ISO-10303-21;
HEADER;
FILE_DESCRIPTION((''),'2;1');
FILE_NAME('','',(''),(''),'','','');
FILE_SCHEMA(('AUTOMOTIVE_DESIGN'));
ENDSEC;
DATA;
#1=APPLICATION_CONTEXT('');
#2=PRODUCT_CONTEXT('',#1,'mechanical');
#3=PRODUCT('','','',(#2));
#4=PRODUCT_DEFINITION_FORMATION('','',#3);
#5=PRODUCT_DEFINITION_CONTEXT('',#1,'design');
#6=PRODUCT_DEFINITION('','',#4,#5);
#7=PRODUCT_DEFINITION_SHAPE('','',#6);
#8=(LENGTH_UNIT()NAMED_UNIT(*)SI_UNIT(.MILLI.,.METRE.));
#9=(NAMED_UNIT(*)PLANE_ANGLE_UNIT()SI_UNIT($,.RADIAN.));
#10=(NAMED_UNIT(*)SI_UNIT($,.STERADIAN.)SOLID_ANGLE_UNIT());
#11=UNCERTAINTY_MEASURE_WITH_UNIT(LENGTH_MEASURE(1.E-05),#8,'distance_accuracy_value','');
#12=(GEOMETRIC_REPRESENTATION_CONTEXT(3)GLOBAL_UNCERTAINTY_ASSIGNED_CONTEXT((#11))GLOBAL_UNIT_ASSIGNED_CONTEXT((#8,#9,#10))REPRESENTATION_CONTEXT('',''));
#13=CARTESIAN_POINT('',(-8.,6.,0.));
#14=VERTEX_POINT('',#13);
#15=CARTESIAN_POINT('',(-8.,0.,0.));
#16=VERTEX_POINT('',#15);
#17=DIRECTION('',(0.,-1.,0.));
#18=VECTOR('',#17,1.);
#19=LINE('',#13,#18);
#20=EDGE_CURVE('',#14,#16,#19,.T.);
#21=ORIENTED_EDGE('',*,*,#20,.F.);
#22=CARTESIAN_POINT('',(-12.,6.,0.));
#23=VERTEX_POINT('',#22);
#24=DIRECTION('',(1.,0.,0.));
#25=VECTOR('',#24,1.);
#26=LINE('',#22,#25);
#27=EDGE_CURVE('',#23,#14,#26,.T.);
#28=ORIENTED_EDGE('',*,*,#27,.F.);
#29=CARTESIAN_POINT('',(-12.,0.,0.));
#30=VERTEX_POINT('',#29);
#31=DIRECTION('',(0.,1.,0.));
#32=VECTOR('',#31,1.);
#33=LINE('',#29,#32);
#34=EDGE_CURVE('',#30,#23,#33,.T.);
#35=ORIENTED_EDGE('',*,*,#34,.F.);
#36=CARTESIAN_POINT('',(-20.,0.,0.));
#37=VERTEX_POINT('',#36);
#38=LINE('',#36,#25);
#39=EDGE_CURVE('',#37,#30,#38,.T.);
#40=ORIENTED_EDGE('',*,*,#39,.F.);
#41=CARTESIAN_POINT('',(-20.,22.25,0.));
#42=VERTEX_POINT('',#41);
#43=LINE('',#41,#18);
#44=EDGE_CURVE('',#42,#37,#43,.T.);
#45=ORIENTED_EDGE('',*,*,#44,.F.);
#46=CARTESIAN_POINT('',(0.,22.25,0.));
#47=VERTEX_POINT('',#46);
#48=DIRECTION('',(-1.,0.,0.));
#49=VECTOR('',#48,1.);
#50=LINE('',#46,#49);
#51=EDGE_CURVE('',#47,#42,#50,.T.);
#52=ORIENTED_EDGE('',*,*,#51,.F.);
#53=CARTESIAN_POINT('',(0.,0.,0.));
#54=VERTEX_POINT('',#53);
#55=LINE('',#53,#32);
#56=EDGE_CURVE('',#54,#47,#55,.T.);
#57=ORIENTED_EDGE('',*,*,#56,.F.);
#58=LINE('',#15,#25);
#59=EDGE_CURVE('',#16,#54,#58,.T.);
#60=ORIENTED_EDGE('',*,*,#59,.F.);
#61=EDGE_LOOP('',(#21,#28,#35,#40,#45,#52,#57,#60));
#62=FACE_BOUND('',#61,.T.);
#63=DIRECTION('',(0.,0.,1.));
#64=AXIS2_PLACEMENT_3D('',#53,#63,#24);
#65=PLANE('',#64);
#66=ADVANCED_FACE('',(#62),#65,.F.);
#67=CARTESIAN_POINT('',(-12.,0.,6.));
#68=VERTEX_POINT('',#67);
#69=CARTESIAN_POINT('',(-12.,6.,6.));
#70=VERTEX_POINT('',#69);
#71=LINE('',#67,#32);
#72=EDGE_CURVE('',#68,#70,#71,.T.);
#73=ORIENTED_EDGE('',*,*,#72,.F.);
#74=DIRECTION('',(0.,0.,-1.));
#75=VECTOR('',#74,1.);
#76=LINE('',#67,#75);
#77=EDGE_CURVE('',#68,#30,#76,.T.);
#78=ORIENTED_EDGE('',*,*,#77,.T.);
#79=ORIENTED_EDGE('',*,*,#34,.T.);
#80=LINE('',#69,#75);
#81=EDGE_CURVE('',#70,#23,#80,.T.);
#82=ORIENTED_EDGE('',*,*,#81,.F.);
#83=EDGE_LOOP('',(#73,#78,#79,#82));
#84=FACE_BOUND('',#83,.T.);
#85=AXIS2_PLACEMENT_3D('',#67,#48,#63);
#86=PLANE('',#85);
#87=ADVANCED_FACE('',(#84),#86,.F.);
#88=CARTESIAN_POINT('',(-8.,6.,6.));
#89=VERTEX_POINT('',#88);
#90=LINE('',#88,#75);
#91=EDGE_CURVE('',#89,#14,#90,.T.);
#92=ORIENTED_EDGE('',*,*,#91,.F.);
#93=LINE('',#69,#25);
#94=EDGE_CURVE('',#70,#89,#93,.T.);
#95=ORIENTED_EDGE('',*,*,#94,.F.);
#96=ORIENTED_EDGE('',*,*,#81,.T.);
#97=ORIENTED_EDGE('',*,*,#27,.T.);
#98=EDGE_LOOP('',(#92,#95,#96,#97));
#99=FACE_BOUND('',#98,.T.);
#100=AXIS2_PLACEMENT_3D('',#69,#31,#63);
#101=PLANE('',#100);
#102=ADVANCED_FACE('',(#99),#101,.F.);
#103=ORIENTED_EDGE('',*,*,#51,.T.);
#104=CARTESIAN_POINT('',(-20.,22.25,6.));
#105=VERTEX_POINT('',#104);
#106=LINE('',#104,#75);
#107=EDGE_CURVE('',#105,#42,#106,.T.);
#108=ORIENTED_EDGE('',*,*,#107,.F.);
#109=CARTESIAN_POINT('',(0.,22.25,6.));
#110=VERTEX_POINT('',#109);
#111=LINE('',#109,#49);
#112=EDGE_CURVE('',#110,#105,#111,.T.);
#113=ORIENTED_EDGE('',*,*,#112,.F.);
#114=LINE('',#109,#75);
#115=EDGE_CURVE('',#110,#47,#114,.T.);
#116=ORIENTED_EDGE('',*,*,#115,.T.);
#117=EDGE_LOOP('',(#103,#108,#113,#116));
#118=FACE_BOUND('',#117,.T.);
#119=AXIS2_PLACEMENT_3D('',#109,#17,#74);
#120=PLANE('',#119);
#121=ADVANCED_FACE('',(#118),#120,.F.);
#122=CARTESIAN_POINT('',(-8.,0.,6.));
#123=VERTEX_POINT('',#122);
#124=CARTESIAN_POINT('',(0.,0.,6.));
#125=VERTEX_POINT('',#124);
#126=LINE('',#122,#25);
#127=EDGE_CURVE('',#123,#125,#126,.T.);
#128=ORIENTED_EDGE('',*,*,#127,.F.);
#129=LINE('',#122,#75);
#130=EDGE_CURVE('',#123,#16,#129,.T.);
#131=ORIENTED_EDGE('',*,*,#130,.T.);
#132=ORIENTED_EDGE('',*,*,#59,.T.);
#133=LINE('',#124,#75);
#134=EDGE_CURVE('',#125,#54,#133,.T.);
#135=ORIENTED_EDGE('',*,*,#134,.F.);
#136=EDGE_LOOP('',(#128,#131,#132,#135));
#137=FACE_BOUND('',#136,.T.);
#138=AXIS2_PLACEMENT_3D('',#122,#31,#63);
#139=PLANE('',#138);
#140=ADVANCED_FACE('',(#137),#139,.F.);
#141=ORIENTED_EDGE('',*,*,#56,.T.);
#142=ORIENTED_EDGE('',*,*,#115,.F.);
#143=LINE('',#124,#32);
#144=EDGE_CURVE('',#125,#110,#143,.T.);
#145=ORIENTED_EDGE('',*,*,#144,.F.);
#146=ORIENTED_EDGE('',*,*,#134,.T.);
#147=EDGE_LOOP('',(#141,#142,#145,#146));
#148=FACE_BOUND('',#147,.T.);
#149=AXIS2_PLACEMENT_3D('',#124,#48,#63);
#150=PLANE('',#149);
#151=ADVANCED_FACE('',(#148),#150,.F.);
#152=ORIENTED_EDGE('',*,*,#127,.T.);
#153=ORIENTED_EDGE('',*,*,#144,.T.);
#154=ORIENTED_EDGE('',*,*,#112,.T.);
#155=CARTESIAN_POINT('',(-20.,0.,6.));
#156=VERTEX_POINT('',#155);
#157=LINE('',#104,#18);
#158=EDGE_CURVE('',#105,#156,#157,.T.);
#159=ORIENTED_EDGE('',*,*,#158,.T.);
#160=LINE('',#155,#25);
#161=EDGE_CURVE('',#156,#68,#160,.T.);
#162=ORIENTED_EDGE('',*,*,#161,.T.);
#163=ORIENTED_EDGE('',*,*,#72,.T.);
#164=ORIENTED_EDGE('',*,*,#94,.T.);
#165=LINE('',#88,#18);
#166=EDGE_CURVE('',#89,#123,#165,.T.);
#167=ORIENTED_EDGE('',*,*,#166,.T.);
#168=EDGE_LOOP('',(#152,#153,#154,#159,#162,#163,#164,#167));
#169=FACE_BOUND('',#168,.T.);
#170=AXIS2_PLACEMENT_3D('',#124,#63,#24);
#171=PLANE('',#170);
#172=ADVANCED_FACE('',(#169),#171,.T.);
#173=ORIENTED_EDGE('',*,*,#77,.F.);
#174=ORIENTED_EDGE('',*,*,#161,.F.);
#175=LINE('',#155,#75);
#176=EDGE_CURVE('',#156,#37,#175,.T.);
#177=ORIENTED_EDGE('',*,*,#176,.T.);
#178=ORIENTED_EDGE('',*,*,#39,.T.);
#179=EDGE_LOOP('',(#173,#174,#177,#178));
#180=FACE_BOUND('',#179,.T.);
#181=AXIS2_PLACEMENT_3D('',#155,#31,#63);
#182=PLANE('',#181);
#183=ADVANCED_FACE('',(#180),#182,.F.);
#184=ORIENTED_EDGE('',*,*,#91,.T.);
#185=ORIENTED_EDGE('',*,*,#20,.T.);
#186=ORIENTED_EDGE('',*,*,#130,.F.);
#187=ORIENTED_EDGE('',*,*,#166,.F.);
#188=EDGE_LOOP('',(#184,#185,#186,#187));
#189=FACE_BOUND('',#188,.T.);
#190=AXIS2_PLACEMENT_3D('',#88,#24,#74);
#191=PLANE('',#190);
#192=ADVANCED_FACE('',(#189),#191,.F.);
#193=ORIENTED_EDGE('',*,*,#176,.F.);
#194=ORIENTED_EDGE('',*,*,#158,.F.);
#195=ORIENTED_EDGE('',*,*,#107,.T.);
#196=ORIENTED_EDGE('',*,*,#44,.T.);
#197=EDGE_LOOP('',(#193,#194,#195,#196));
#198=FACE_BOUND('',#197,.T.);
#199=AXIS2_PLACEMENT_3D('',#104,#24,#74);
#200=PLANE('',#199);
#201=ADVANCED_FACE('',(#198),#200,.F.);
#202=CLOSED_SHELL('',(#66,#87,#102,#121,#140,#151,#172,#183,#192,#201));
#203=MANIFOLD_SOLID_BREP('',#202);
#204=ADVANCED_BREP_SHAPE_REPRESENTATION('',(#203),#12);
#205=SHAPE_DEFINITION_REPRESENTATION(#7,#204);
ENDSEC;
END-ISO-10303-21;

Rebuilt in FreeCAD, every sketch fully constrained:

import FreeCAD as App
import Part
import Sketcher

V = App.Vector
Q = App.Units.Quantity


def add_polygon(sketch, points):
    """Adds a closed chain of lines whose ends are joined by coincident constraints."""
    first, n = sketch.GeometryCount, len(points)
    for a, b in zip(points, points[1:] + points[:1]):
        sketch.addGeometry(Part.LineSegment(App.Vector(*a, 0), App.Vector(*b, 0)), False)
    for i in range(n):
        sketch.addConstraint(Sketcher.Constraint("Coincident", first + i, 2, first + (i + 1) % n, 1))

doc = App.newDocument("Part")
body = doc.addObject("PartDesign::Body", "Body")

# Sketch on XY plane
sketch1 = body.newObject("Sketcher::SketchObject", "Sketch")
sketch1.AttachmentSupport = (doc.getObject("XY_Plane"), [""])
sketch1.MapMode = "FlatFace"
add_polygon(sketch1, [(0, 0), (0, 22.2), (-20, 22.2), (-20, 0), (-12, 0), (-12, 6), (-8, 6), (-8, 0)])  # lines 0-7
sketch1.addConstraint([
    Sketcher.Constraint("Vertical", 0),
    Sketcher.Constraint("Horizontal", 1),
    Sketcher.Constraint("Vertical", 2),
    Sketcher.Constraint("Horizontal", 3),
    Sketcher.Constraint("Vertical", 4),
    Sketcher.Constraint("Horizontal", 5),
    Sketcher.Constraint("Vertical", 6),
    Sketcher.Constraint("Horizontal", 7),
    Sketcher.Constraint("Coincident", 7, 2, -1, 1),
    Sketcher.Constraint("PointOnObject", 2, 2, -1),
    Sketcher.Constraint("Equal", 3, 7),
    Sketcher.Constraint("DistanceX", 1, 2, 1, 1, Q("20 mm")),
    Sketcher.Constraint("DistanceX", 3, 1, 3, 2, Q("8 mm")),
    Sketcher.Constraint("DistanceY", 4, 1, 4, 2, Q("6 mm")),
    Sketcher.Constraint("DistanceY", 0, 1, 0, 2, Q("22.25 mm")),
])
pad1 = body.newObject("PartDesign::Pad", "Pad")
pad1.Profile = sketch1
pad1.Length = 6

doc.recompute()
